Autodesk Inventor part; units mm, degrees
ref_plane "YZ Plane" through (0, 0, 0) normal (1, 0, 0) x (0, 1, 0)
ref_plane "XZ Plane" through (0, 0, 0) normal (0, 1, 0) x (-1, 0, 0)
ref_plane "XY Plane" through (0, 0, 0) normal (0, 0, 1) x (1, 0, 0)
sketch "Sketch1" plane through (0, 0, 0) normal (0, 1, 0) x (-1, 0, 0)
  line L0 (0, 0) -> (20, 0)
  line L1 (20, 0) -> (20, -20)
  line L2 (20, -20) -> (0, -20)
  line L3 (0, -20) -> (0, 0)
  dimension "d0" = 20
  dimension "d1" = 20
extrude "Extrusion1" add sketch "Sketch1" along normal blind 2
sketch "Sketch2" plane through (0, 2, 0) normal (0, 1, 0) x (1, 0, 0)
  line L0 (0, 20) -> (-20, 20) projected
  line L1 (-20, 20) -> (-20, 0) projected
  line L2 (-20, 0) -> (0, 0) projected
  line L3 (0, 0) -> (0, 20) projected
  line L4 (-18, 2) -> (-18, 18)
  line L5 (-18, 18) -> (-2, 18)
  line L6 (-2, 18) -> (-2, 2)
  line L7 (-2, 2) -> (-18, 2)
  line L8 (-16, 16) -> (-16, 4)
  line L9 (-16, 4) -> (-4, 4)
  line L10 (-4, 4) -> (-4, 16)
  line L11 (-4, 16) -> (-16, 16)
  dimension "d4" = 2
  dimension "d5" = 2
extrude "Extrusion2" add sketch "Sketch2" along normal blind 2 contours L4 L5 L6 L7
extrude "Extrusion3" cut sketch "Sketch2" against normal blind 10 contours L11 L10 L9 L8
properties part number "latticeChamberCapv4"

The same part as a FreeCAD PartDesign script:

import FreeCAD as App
import Part
import Sketcher

V = App.Vector
Q = App.Units.Quantity


def add_polygon(sketch, points):
    """Adds a closed chain of lines whose ends are joined by coincident constraints."""
    first, n = sketch.GeometryCount, len(points)
    for a, b in zip(points, points[1:] + points[:1]):
        sketch.addGeometry(Part.LineSegment(App.Vector(*a, 0), App.Vector(*b, 0)), False)
    for i in range(n):
        sketch.addConstraint(Sketcher.Constraint("Coincident", first + i, 2, first + (i + 1) % n, 1))

doc = App.newDocument("Part")
body = doc.addObject("PartDesign::Body", "Body")

sketch1 = body.newObject("Sketcher::SketchObject", "Sketch")
sketch1.AttachmentSupport = (doc.getObject("XZ_Plane"), [""])
sketch1.MapMode = "FlatFace"
add_polygon(sketch1, [(-20, 0), (0, 0), (0, -20), (-20, -20)])
sketch1.addConstraint(Sketcher.Constraint("Horizontal", 0))
sketch1.addConstraint(Sketcher.Constraint("Vertical", 1))
sketch1.addConstraint(Sketcher.Constraint("Horizontal", 2))
sketch1.addConstraint(Sketcher.Constraint("Vertical", 3))
sketch1.addConstraint(Sketcher.Constraint("Coincident", 0, 2, -1, 1))
sketch1.addConstraint(Sketcher.Constraint("Equal", 2, 1))
sketch1.addConstraint(Sketcher.Constraint("DistanceX", 0, 1, 0, 2, Q("20 mm")))
pad1 = body.newObject("PartDesign::Pad", "Pad")
pad1.Profile = sketch1
pad1.Length = 2
pad1.Reversed = True

sketch2 = body.newObject("Sketcher::SketchObject", "Sketch001")
sketch2.AttachmentSupport = (doc.getObject("XZ_Plane"), [""])
sketch2.MapMode = "FlatFace"
sketch2.AttachmentOffset = App.Placement(V(0, 0, -2), App.Rotation())
add_polygon(sketch2, [(-18, -18), (-18, -2), (-2, -2), (-2, -18)])
add_polygon(sketch2, [(-16, -4), (-16, -16), (-4, -16), (-4, -4)])
sketch2.addConstraint(Sketcher.Constraint("Vertical", 0))
sketch2.addConstraint(Sketcher.Constraint("Horizontal", 1))
sketch2.addConstraint(Sketcher.Constraint("Vertical", 2))
sketch2.addConstraint(Sketcher.Constraint("Horizontal", 3))
sketch2.addConstraint(Sketcher.Constraint("Vertical", 4))
sketch2.addConstraint(Sketcher.Constraint("Horizontal", 5))
sketch2.addConstraint(Sketcher.Constraint("Vertical", 6))
sketch2.addConstraint(Sketcher.Constraint("Horizontal", 7))
sketch2.addConstraint(Sketcher.Constraint("Equal", 3, 0))
sketch2.addConstraint(Sketcher.Constraint("Equal", 7, 4))
sketch2.addConstraint(Sketcher.Constraint("DistanceY", 0, 2, -1, 1, Q("2 mm")))
sketch2.addConstraint(Sketcher.Constraint("DistanceX", 1, 2, -1, 1, Q("2 mm")))
sketch2.addConstraint(Sketcher.Constraint("DistanceX", 3, 2, 4, 2, Q("2 mm")))
sketch2.addConstraint(Sketcher.Constraint("DistanceY", 3, 2, 4, 2, Q("2 mm")))
sketch2.addConstraint(Sketcher.Constraint("DistanceX", 5, 2, 2, 2, Q("2 mm")))
sketch2.addConstraint(Sketcher.Constraint("DistanceX", 1, 1, 1, 2, Q("16 mm")))
pad2 = body.newObject("PartDesign::Pad", "Pad001")
pad2.Profile = sketch2
pad2.Length = 2
pad2.Reversed = True

sketch3 = body.newObject("Sketcher::SketchObject", "Sketch002")
sketch3.AttachmentSupport = (doc.getObject("XZ_Plane"), [""])
sketch3.MapMode = "FlatFace"
sketch3.AttachmentOffset = App.Placement(V(0, 0, -2), App.Rotation())
add_polygon(sketch3, [(-4, -16), (-16, -16), (-16, -4), (-4, -4)])
sketch3.addConstraint(Sketcher.Constraint("Horizontal", 0))
sketch3.addConstraint(Sketcher.Constraint("Vertical", 1))
sketch3.addConstraint(Sketcher.Constraint("Horizontal", 2))
sketch3.addConstraint(Sketcher.Constraint("Vertical", 3))
sketch3.addConstraint(Sketcher.Constraint("Equal", 2, 1))
sketch3.addConstraint(Sketcher.Constraint("DistanceX", 0, 2, 0, 1, Q("12 mm")))
sketch3.addConstraint(Sketcher.Constraint("DistanceX", 0, 2, -1, 1, Q("16 mm")))
sketch3.addConstraint(Sketcher.Constraint("DistanceY", 0, 2, -1, 1, Q("16 mm")))
pocket1 = body.newObject("PartDesign::Pocket", "Pocket")
pocket1.Profile = sketch3
pocket1.Length = 10
pocket1.Reversed = True

doc.recompute()
